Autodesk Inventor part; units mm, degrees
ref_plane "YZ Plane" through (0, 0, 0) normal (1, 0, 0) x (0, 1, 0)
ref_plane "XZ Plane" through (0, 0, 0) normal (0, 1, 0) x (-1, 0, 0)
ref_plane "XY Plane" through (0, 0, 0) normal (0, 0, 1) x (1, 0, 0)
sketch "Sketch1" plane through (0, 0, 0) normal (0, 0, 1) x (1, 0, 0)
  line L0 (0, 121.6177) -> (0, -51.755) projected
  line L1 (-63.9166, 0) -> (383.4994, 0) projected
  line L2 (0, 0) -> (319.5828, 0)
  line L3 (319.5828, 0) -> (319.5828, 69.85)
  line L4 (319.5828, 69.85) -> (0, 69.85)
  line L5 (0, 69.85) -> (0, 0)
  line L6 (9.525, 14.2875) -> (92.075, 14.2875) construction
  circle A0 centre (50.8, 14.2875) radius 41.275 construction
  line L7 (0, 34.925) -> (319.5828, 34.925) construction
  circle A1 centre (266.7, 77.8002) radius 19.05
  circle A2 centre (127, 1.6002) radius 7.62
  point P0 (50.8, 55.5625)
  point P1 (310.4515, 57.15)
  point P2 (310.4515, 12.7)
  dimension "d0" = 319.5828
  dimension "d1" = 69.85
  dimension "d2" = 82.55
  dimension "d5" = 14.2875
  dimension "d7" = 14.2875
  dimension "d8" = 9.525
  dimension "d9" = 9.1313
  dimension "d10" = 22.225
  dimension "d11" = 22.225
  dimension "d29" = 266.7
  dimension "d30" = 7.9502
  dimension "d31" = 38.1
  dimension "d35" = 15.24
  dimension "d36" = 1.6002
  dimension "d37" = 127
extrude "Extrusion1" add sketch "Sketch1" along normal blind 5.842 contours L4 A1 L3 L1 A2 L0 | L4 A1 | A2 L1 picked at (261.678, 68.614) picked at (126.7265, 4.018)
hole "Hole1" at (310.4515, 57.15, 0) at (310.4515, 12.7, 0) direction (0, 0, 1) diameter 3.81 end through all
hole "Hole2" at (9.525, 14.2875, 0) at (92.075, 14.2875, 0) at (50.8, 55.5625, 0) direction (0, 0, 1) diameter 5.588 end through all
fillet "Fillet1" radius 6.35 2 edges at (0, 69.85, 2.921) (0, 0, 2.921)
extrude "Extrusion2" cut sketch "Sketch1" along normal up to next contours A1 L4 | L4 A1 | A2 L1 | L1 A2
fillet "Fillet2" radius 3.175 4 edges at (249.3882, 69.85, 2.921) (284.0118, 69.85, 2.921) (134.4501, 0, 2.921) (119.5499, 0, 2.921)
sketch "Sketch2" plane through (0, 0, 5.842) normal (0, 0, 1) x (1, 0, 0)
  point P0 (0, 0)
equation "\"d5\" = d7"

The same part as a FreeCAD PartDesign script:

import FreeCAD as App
import Part
import Sketcher
from FreeCAD import Vector
Q = App.Units.Quantity


def edges_at(feature, points):
    """Names of the edges that pass closest to the given points."""
    edges = feature.Shape.Edges
    near = lambda p: min(range(len(edges)), key=lambda i: edges[i].distToShape(Part.Vertex(*p))[0])
    return sorted({f"Edge{near(p) + 1}" for p in points})

doc = App.newDocument("Part")
body = doc.addObject("PartDesign::Body", "Body")

# Sketch on XY plane
sketch1 = body.newObject("Sketcher::SketchObject", "Sketch")
sketch1.AttachmentSupport = (doc.getObject("XY_Plane"), [""])
sketch1.MapMode = "FlatFace"
sketch1.addGeometry([
    Part.LineSegment(Vector(0, 70, 0), Vector(0, 0, 0)),
    Part.LineSegment(Vector(0, 0, 0), Vector(320, 0, 0)),
    Part.LineSegment(Vector(320, 0, 0), Vector(320, 70, 0)),
    Part.LineSegment(Vector(320, 70, 0), Vector(0, 70, 0)),
], False)
sketch1.addConstraint([
    Sketcher.Constraint("Coincident", 0, 2, 1, 1),
    Sketcher.Constraint("Coincident", 1, 2, 2, 1),
    Sketcher.Constraint("Coincident", 2, 2, 3, 1),
    Sketcher.Constraint("Coincident", 3, 2, 0, 1),
    Sketcher.Constraint("Vertical", 0),
    Sketcher.Constraint("Horizontal", 1),
    Sketcher.Constraint("Vertical", 2),
    Sketcher.Constraint("Horizontal", 3),
    Sketcher.Constraint("Coincident", 0, 2, -1, 1),
    Sketcher.Constraint("DistanceY", 0, 2, 0, 1, Q("2.75 in")),
    Sketcher.Constraint("DistanceX", 1, 1, 1, 2, Q("12.582 in")),
])
pad1 = body.newObject("PartDesign::Pad", "Pad")
pad1.Profile = sketch1
pad1.Length = Q("0.23 in")

# Sketch on XY plane
sketch2 = body.newObject("Sketcher::SketchObject", "Sketch001")
sketch2.AttachmentSupport = (doc.getObject("XY_Plane"), [""])
sketch2.MapMode = "FlatFace"
sketch2.addGeometry([
    Part.Circle(Vector(310.5, 57.1, 0), Vector(0, 0, 1), 1.9),
    Part.Circle(Vector(310.5, 12.7, 0), Vector(0, 0, 1), 1.9),
], False)
sketch2.addConstraint([
    Sketcher.Constraint("Equal", 0, 1),
    Sketcher.Constraint("Vertical", 0, 3, 1, 3),
    Sketcher.Constraint("Diameter", 0, Q("0.15 in")),
    Sketcher.Constraint("DistanceY", -1, 1, 1, 3, Q("0.5 in")),
    Sketcher.Constraint("DistanceY", -1, 1, 0, 3, Q("2.25 in")),
    Sketcher.Constraint("DistanceX", -1, 1, 0, 3, Q("12.2225 in")),
])
doc.recompute()
hole = body.newObject("PartDesign::Hole", "Hole")
hole.Profile = sketch2
hole.ThreadType = "None"
hole.Diameter = Q("0.15 in")
hole.DepthType = "ThroughAll"
hole.Reversed = True

# Sketch on XY plane
sketch3 = body.newObject("Sketcher::SketchObject", "Sketch002")
sketch3.AttachmentSupport = (doc.getObject("XY_Plane"), [""])
sketch3.MapMode = "FlatFace"
sketch3.addGeometry([
    Part.Circle(Vector(9.5, 14.3, 0), Vector(0, 0, 1), 2.8),
    Part.Circle(Vector(92.1, 14.3, 0), Vector(0, 0, 1), 2.8),
    Part.Circle(Vector(50.8, 55.6, 0), Vector(0, 0, 1), 2.8),
], False)
sketch3.addConstraint([
    Sketcher.Constraint("Equal", 0, 1),
    Sketcher.Constraint("Equal", 1, 2),
    Sketcher.Constraint("Horizontal", 0, 3, 1, 3),
    Sketcher.Constraint("Diameter", 0, Q("0.22 in")),
    Sketcher.Constraint("DistanceX", -1, 1, 2, 3, Q("2 in")),
    Sketcher.Constraint("DistanceX", 0, 3, 1, 3, Q("3.25 in")),
    Sketcher.Constraint("DistanceX", -1, 1, 0, 3, Q("0.375 in")),
    Sketcher.Constraint("DistanceY", -1, 1, 0, 3, Q("0.5625 in")),
    Sketcher.Constraint("DistanceY", -1, 1, 2, 3, Q("2.1875 in")),
])
doc.recompute()
hole2 = body.newObject("PartDesign::Hole", "Hole001")
hole2.Profile = sketch3
hole2.ThreadType = "None"
hole2.Diameter = Q("0.22 in")
hole2.DepthType = "ThroughAll"
hole2.Reversed = True
doc.recompute()

fillet = body.newObject("PartDesign::Fillet", "Fillet")
fillet.Base = (hole2, edges_at(hole2, [(0, 69.85, 2.921), (0, 0, 2.921)]))
fillet.Radius = Q("0.25 in")

# Sketch on XY plane
sketch4 = body.newObject("Sketcher::SketchObject", "Sketch003")
sketch4.AttachmentSupport = (doc.getObject("XY_Plane"), [""])
sketch4.MapMode = "FlatFace"
sketch4.addGeometry([
    Part.Circle(Vector(267, 78, 0), Vector(0, 0, 1), 19),
    Part.Circle(Vector(127, 2, 0), Vector(0, 0, 1), 8),
], False)
sketch4.addConstraint([
    Sketcher.Constraint("Diameter", 0, Q("1.5 in")),
    Sketcher.Constraint("Diameter", 1, Q("0.6 in")),
    Sketcher.Constraint("DistanceX", -1, 1, 1, 3, Q("5 in")),
    Sketcher.Constraint("DistanceX", -1, 1, 0, 3, Q("10.5 in")),
    Sketcher.Constraint("DistanceY", -1, 1, 1, 3, Q("0.063 in")),
    Sketcher.Constraint("DistanceY", 1, 3, 0, 3, Q("3 in")),
])
pocket1 = body.newObject("PartDesign::Pocket", "Pocket")
pocket1.Profile = sketch4
pocket1.Type = "UpToFirst"
pocket1.Reversed = True
doc.recompute()

fillet2 = body.newObject("PartDesign::Fillet", "Fillet001")
fillet2.Base = (pocket1, edges_at(pocket1, [
    (249.388, 69.85, 2.921),
    (284.012, 69.85, 2.921),
    (134.45, 0, 2.921),
    (119.55, 0, 2.921),
]))
fillet2.Radius = Q("0.125 in")

doc.recompute()
